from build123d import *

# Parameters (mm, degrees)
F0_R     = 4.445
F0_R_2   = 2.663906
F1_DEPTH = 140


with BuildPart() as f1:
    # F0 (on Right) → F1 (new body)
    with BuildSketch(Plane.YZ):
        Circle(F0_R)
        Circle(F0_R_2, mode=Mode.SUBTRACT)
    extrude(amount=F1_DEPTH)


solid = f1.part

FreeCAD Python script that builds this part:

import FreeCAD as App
import Part
import Sketcher
from FreeCAD import Vector

doc = App.newDocument("Part")
body = doc.addObject("PartDesign::Body", "Body")

sketch1 = body.newObject("Sketcher::SketchObject", "Sketch")
sketch1.AttachmentSupport = (doc.getObject("YZ_Plane"), [""])
sketch1.MapMode = "FlatFace"
sketch1.addGeometry(Part.Circle(Vector(0, 0, 0), Vector(0, 0, 1), 4.4), False)
sketch1.addGeometry(Part.Circle(Vector(0, 0, 0), Vector(0, 0, 1), 2.7), False)
sketch1.addConstraint(Sketcher.Constraint("Coincident", 0, 3, -1, 1))
sketch1.addConstraint(Sketcher.Constraint("Coincident", 1, 3, -1, 1))
sketch1.addConstraint(Sketcher.Constraint("Diameter", 0, 8.89))
sketch1.addConstraint(Sketcher.Constraint("Diameter", 1, 5.327812))
pad1 = body.newObject("PartDesign::Pad", "Pad")
pad1.Profile = sketch1
pad1.Length = 140

doc.recompute()
